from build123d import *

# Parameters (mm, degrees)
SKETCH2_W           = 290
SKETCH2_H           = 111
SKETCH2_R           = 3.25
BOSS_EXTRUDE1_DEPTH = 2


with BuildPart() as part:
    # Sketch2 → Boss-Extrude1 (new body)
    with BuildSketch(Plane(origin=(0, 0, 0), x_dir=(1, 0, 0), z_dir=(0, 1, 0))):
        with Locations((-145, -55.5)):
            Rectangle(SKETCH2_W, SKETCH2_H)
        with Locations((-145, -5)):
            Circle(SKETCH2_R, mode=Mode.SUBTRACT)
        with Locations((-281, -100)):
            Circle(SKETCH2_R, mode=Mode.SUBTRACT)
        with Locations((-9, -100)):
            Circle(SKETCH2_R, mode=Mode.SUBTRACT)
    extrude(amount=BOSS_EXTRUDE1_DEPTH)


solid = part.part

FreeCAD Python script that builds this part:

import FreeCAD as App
import Part
import Sketcher

V = App.Vector
Q = App.Units.Quantity


def add_polygon(sketch, points):
    """Adds a closed chain of lines whose ends are joined by coincident constraints."""
    first, n = sketch.GeometryCount, len(points)
    for a, b in zip(points, points[1:] + points[:1]):
        sketch.addGeometry(Part.LineSegment(App.Vector(*a, 0), App.Vector(*b, 0)), False)
    for i in range(n):
        sketch.addConstraint(Sketcher.Constraint("Coincident", first + i, 2, first + (i + 1) % n, 1))

doc = App.newDocument("Part")
params = doc.addObject("Spreadsheet::Sheet", "Params")
for row, (alias, value) in enumerate([
    ("sketch1_diameter", "6.5 mm"),
    ("sketch1_width", "290 mm"),
    ("sketch1_height", "111 mm"),
    ("pad1_length", "2 mm"),
], start=1):
    params.set(f"A{row}", alias)
    params.set(f"B{row}", "=" + value)
    params.setAlias(f"B{row}", alias)

body = doc.addObject("PartDesign::Body", "Body")

sketch1 = body.newObject("Sketcher::SketchObject", "Sketch")
sketch1.AttachmentSupport = (doc.getObject("XZ_Plane"), [""])
sketch1.MapMode = "FlatFace"
add_polygon(sketch1, [(-290, 0), (-290, 111), (0, 111), (0, 0)])
sketch1.addGeometry(Part.Circle(V(-281, 100, 0), V(0, 0, 1), 3.2), False)
sketch1.addGeometry(Part.Circle(V(-9, 100, 0), V(0, 0, 1), 3.2), False)
sketch1.addGeometry(Part.Circle(V(-145, 5, 0), V(0, 0, 1), 3.2), False)
sketch1.addConstraint(Sketcher.Constraint("Vertical", 0))
sketch1.addConstraint(Sketcher.Constraint("Horizontal", 1))
sketch1.addConstraint(Sketcher.Constraint("Vertical", 2))
sketch1.addConstraint(Sketcher.Constraint("Horizontal", 3))
sketch1.addConstraint(Sketcher.Constraint("Coincident", 2, 2, -1, 1))
sketch1.addConstraint(Sketcher.Constraint("Equal", 4, 5))
sketch1.addConstraint(Sketcher.Constraint("Equal", 5, 6))
sketch1.addConstraint(Sketcher.Constraint("Horizontal", 4, 3, 5, 3))
sketch1.addConstraint(Sketcher.Constraint("Diameter", 4, Q("6.5 mm")))
sketch1.addConstraint(Sketcher.Constraint("DistanceX", 1, 1, 1, 2, Q("290 mm")))
sketch1.addConstraint(Sketcher.Constraint("DistanceY", 0, 1, 0, 2, Q("111 mm")))
sketch1.addConstraint(Sketcher.Constraint("DistanceX", 4, 3, -1, 1, Q("281 mm")))
sketch1.addConstraint(Sketcher.Constraint("DistanceY", -1, 1, 4, 3, Q("100 mm")))
sketch1.addConstraint(Sketcher.Constraint("DistanceX", 5, 3, -1, 1, Q("9 mm")))
sketch1.addConstraint(Sketcher.Constraint("DistanceX", 6, 3, -1, 1, Q("145 mm")))
sketch1.addConstraint(Sketcher.Constraint("DistanceY", -1, 1, 6, 3, Q("5 mm")))
sketch1.setExpression("Constraints[12]", "Params.sketch1_diameter")
sketch1.setExpression("Constraints[13]", "Params.sketch1_width")
sketch1.setExpression("Constraints[14]", "Params.sketch1_height")
pad1 = body.newObject("PartDesign::Pad", "Pad")
pad1.Profile = sketch1
pad1.setExpression("Length", "Params.pad1_length")
pad1.Reversed = True

doc.recompute()
